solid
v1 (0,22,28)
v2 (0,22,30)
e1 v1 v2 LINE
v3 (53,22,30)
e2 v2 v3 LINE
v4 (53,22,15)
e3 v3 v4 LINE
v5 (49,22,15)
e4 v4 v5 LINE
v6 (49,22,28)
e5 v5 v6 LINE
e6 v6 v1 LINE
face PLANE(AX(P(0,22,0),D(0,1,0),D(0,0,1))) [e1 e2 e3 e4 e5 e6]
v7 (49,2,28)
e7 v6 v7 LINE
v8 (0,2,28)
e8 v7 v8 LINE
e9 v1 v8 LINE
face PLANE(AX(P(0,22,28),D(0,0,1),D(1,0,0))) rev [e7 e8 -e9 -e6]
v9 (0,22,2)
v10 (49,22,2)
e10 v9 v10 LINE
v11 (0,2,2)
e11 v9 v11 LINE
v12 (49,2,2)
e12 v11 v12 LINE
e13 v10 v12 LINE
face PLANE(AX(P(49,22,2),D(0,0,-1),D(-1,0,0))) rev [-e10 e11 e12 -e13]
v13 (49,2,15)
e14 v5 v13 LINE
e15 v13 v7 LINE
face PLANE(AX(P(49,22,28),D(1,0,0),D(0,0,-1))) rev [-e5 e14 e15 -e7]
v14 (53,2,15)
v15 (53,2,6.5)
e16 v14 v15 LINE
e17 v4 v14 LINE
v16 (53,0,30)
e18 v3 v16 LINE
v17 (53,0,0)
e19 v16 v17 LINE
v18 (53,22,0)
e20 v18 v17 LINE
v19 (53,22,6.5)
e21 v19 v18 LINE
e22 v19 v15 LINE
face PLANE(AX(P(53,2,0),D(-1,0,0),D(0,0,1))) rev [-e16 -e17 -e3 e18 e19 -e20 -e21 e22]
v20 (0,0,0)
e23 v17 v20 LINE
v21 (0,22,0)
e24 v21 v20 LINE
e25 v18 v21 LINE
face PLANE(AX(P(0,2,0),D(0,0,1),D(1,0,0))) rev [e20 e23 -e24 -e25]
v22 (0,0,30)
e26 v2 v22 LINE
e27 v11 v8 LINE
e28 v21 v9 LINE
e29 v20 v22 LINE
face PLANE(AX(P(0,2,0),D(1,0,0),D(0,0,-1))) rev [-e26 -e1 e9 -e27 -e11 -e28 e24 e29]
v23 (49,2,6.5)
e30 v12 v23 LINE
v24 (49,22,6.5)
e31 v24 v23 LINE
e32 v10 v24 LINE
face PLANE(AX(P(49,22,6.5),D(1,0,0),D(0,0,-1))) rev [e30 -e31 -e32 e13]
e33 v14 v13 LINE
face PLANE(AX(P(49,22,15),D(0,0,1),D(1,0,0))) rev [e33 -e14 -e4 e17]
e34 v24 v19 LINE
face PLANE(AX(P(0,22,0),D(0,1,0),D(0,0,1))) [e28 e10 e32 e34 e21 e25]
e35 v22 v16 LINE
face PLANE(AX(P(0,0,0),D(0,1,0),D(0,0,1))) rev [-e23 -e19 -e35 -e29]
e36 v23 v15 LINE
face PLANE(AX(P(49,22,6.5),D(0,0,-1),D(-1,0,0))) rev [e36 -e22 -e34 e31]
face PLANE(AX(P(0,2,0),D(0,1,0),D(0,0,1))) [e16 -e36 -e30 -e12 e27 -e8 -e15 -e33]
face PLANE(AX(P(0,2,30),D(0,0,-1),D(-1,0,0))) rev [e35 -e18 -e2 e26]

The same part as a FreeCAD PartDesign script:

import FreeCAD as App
import Part
import Sketcher
from FreeCAD import Vector
Q = App.Units.Quantity


def add_polygon(sketch, points):
    """Adds a closed chain of lines whose ends are joined by coincident constraints."""
    first, n = sketch.GeometryCount, len(points)
    for a, b in zip(points, points[1:] + points[:1]):
        sketch.addGeometry(Part.LineSegment(App.Vector(*a, 0), App.Vector(*b, 0)), False)
    for i in range(n):
        sketch.addConstraint(Sketcher.Constraint("Coincident", first + i, 2, first + (i + 1) % n, 1))

doc = App.newDocument("Part")
body = doc.addObject("PartDesign::Body", "Body")

sketch1 = body.newObject("Sketcher::SketchObject", "Sketch")
sketch1.AttachmentSupport = (doc.getObject("XZ_Plane"), [""])
sketch1.MapMode = "FlatFace"
add_polygon(sketch1, [(0, 0), (0, 30), (53, 30), (53, 0)])
sketch1.addConstraint([
    Sketcher.Constraint("Vertical", 0),
    Sketcher.Constraint("Horizontal", 1),
    Sketcher.Constraint("Vertical", 2),
    Sketcher.Constraint("Horizontal", 3),
    Sketcher.Constraint("Coincident", 3, 2, -1, 1),
    Sketcher.Constraint("DistanceX", 1, 1, 1, 2, Q("53 mm")),
    Sketcher.Constraint("DistanceY", 0, 1, 0, 2, Q("30 mm")),
])
pad1 = body.newObject("PartDesign::Pad", "Pad")
pad1.Profile = sketch1
pad1.Length = 2
pad1.Reversed = True

sketch2 = body.newObject("Sketcher::SketchObject", "Sketch001")
sketch2.AttachmentSupport = (doc.getObject("XZ_Plane"), [""])
sketch2.MapMode = "FlatFace"
sketch2.AttachmentOffset = App.Placement(Vector(0, 0, -2), App.Rotation())
add_polygon(sketch2, [(49, 28), (0, 28), (0, 30), (53, 30), (53, 15), (49, 15)])
add_polygon(sketch2, [(0, 2), (49, 2), (49, 6.5), (53, 6.5), (53, 0), (0, 0)])
sketch2.addConstraint([
    Sketcher.Constraint("Horizontal", 0),
    Sketcher.Constraint("Vertical", 1),
    Sketcher.Constraint("Horizontal", 2),
    Sketcher.Constraint("Vertical", 3),
    Sketcher.Constraint("Horizontal", 4),
    Sketcher.Constraint("Vertical", 5),
    Sketcher.Constraint("Horizontal", 6),
    Sketcher.Constraint("Vertical", 7),
    Sketcher.Constraint("Horizontal", 8),
    Sketcher.Constraint("Vertical", 9),
    Sketcher.Constraint("Horizontal", 10),
    Sketcher.Constraint("Vertical", 11),
    Sketcher.Constraint("Coincident", 10, 2, -1, 1),
    Sketcher.Constraint("PointOnObject", 0, 2, -2),
    Sketcher.Constraint("Vertical", 5, 2, 6, 2),
    Sketcher.Constraint("Vertical", 3, 2, 8, 2),
    Sketcher.Constraint("Equal", 1, 11),
    Sketcher.Constraint("DistanceX", 0, 2, 0, 1, Q("49 mm")),
    Sketcher.Constraint("DistanceX", 2, 1, 2, 2, Q("53 mm")),
    Sketcher.Constraint("DistanceY", 1, 1, 1, 2, Q("2 mm")),
    Sketcher.Constraint("DistanceY", 3, 2, 3, 1, Q("15 mm")),
    Sketcher.Constraint("DistanceY", 7, 1, 7, 2, Q("4.5 mm")),
    Sketcher.Constraint("DistanceY", -1, 1, 0, 2, Q("28 mm")),
])
pad2 = body.newObject("PartDesign::Pad", "Pad001")
pad2.Profile = sketch2
pad2.Length = 20
pad2.Reversed = True

doc.recompute()
